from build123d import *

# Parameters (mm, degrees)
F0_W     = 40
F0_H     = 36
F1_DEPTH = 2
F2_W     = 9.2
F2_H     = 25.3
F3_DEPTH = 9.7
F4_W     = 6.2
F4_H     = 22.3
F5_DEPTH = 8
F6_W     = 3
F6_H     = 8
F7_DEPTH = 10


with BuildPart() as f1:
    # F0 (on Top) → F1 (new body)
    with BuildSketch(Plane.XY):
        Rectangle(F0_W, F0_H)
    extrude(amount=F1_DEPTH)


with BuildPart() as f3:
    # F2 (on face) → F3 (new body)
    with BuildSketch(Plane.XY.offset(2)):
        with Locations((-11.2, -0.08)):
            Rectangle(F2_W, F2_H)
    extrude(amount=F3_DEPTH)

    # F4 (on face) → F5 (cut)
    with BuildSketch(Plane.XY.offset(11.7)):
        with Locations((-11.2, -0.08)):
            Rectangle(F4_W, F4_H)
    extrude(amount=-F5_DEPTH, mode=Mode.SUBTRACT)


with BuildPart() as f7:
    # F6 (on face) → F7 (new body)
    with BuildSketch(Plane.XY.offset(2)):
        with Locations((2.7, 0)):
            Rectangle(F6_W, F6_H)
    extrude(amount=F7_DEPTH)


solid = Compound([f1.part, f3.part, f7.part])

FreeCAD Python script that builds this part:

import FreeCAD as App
import Part
import Sketcher

V = App.Vector


def add_polygon(sketch, points):
    """Adds a closed chain of lines whose ends are joined by coincident constraints."""
    first, n = sketch.GeometryCount, len(points)
    for a, b in zip(points, points[1:] + points[:1]):
        sketch.addGeometry(Part.LineSegment(App.Vector(*a, 0), App.Vector(*b, 0)), False)
    for i in range(n):
        sketch.addConstraint(Sketcher.Constraint("Coincident", first + i, 2, first + (i + 1) % n, 1))

doc = App.newDocument("Part")
body = doc.addObject("PartDesign::Body", "Body")

sketch1 = body.newObject("Sketcher::SketchObject", "Sketch")
sketch1.AttachmentSupport = (doc.getObject("XY_Plane"), [""])
sketch1.MapMode = "FlatFace"
add_polygon(sketch1, [(-20, 18), (-20, -18), (20, -18), (20, 18)])
sketch1.addConstraint(Sketcher.Constraint("Vertical", 0))
sketch1.addConstraint(Sketcher.Constraint("Horizontal", 1))
sketch1.addConstraint(Sketcher.Constraint("Vertical", 2))
sketch1.addConstraint(Sketcher.Constraint("Horizontal", 3))
sketch1.addConstraint(Sketcher.Constraint("Symmetric", 0, 2, 2, 2, -1, 1))
sketch1.addConstraint(Sketcher.Constraint("DistanceX", 1, 1, 1, 2, 40.0))
sketch1.addConstraint(Sketcher.Constraint("DistanceY", 0, 2, 0, 1, 36.0))
pad1 = body.newObject("PartDesign::Pad", "Pad")
pad1.Profile = sketch1
pad1.Length = 2
body2 = doc.addObject("PartDesign::Body", "Body001")

sketch2 = body2.newObject("Sketcher::SketchObject", "Sketch001")
sketch2.AttachmentSupport = (doc.getObject("XY_Plane001"), [""])
sketch2.MapMode = "FlatFace"
sketch2.AttachmentOffset = App.Placement(V(0, 0, 2), App.Rotation())
add_polygon(sketch2, [(-16, 13), (-16, -13), (-7, -13), (-7, 13)])
sketch2.addConstraint(Sketcher.Constraint("Vertical", 0))
sketch2.addConstraint(Sketcher.Constraint("Horizontal", 1))
sketch2.addConstraint(Sketcher.Constraint("Vertical", 2))
sketch2.addConstraint(Sketcher.Constraint("Horizontal", 3))
sketch2.addConstraint(Sketcher.Constraint("DistanceX", 1, 1, 1, 2, 9.2))
sketch2.addConstraint(Sketcher.Constraint("DistanceY", 0, 2, 0, 1, 25.3))
sketch2.addConstraint(Sketcher.Constraint("DistanceX", 0, 2, -1, 1, 15.8))
sketch2.addConstraint(Sketcher.Constraint("DistanceY", 0, 2, -1, 1, 12.73))
pad2 = body2.newObject("PartDesign::Pad", "Pad001")
pad2.Profile = sketch2
pad2.Length = 9.7

sketch3 = body2.newObject("Sketcher::SketchObject", "Sketch002")
sketch3.AttachmentSupport = (doc.getObject("XY_Plane001"), [""])
sketch3.MapMode = "FlatFace"
sketch3.AttachmentOffset = App.Placement(V(0, 0, 11.7), App.Rotation())
add_polygon(sketch3, [(-14, 11), (-14, -11), (-8, -11), (-8, 11)])
sketch3.addConstraint(Sketcher.Constraint("Vertical", 0))
sketch3.addConstraint(Sketcher.Constraint("Horizontal", 1))
sketch3.addConstraint(Sketcher.Constraint("Vertical", 2))
sketch3.addConstraint(Sketcher.Constraint("Horizontal", 3))
sketch3.addConstraint(Sketcher.Constraint("DistanceX", 1, 1, 1, 2, 6.2))
sketch3.addConstraint(Sketcher.Constraint("DistanceY", 0, 2, 0, 1, 22.3))
sketch3.addConstraint(Sketcher.Constraint("DistanceX", 0, 2, -1, 1, 14.3))
sketch3.addConstraint(Sketcher.Constraint("DistanceY", 0, 2, -1, 1, 11.23))
pocket1 = body2.newObject("PartDesign::Pocket", "Pocket")
pocket1.Profile = sketch3
pocket1.Length = 8
body3 = doc.addObject("PartDesign::Body", "Body002")

sketch4 = body3.newObject("Sketcher::SketchObject", "Sketch003")
sketch4.AttachmentSupport = (doc.getObject("XY_Plane002"), [""])
sketch4.MapMode = "FlatFace"
sketch4.AttachmentOffset = App.Placement(V(0, 0, 2), App.Rotation())
add_polygon(sketch4, [(1.2, 4), (1.2, -4), (4.2, -4), (4.2, 4)])
sketch4.addConstraint(Sketcher.Constraint("Vertical", 0))
sketch4.addConstraint(Sketcher.Constraint("Horizontal", 1))
sketch4.addConstraint(Sketcher.Constraint("Vertical", 2))
sketch4.addConstraint(Sketcher.Constraint("Horizontal", 3))
sketch4.addConstraint(Sketcher.Constraint("DistanceX", 1, 1, 1, 2, 3.0))
sketch4.addConstraint(Sketcher.Constraint("DistanceY", 0, 2, 0, 1, 8.0))
sketch4.addConstraint(Sketcher.Constraint("DistanceY", 0, 2, -1, 1, 4.0))
sketch4.addConstraint(Sketcher.Constraint("DistanceX", -1, 1, 0, 2, 1.2))
pad3 = body3.newObject("PartDesign::Pad", "Pad002")
pad3.Profile = sketch4
pad3.Length = 10

doc.recompute()
